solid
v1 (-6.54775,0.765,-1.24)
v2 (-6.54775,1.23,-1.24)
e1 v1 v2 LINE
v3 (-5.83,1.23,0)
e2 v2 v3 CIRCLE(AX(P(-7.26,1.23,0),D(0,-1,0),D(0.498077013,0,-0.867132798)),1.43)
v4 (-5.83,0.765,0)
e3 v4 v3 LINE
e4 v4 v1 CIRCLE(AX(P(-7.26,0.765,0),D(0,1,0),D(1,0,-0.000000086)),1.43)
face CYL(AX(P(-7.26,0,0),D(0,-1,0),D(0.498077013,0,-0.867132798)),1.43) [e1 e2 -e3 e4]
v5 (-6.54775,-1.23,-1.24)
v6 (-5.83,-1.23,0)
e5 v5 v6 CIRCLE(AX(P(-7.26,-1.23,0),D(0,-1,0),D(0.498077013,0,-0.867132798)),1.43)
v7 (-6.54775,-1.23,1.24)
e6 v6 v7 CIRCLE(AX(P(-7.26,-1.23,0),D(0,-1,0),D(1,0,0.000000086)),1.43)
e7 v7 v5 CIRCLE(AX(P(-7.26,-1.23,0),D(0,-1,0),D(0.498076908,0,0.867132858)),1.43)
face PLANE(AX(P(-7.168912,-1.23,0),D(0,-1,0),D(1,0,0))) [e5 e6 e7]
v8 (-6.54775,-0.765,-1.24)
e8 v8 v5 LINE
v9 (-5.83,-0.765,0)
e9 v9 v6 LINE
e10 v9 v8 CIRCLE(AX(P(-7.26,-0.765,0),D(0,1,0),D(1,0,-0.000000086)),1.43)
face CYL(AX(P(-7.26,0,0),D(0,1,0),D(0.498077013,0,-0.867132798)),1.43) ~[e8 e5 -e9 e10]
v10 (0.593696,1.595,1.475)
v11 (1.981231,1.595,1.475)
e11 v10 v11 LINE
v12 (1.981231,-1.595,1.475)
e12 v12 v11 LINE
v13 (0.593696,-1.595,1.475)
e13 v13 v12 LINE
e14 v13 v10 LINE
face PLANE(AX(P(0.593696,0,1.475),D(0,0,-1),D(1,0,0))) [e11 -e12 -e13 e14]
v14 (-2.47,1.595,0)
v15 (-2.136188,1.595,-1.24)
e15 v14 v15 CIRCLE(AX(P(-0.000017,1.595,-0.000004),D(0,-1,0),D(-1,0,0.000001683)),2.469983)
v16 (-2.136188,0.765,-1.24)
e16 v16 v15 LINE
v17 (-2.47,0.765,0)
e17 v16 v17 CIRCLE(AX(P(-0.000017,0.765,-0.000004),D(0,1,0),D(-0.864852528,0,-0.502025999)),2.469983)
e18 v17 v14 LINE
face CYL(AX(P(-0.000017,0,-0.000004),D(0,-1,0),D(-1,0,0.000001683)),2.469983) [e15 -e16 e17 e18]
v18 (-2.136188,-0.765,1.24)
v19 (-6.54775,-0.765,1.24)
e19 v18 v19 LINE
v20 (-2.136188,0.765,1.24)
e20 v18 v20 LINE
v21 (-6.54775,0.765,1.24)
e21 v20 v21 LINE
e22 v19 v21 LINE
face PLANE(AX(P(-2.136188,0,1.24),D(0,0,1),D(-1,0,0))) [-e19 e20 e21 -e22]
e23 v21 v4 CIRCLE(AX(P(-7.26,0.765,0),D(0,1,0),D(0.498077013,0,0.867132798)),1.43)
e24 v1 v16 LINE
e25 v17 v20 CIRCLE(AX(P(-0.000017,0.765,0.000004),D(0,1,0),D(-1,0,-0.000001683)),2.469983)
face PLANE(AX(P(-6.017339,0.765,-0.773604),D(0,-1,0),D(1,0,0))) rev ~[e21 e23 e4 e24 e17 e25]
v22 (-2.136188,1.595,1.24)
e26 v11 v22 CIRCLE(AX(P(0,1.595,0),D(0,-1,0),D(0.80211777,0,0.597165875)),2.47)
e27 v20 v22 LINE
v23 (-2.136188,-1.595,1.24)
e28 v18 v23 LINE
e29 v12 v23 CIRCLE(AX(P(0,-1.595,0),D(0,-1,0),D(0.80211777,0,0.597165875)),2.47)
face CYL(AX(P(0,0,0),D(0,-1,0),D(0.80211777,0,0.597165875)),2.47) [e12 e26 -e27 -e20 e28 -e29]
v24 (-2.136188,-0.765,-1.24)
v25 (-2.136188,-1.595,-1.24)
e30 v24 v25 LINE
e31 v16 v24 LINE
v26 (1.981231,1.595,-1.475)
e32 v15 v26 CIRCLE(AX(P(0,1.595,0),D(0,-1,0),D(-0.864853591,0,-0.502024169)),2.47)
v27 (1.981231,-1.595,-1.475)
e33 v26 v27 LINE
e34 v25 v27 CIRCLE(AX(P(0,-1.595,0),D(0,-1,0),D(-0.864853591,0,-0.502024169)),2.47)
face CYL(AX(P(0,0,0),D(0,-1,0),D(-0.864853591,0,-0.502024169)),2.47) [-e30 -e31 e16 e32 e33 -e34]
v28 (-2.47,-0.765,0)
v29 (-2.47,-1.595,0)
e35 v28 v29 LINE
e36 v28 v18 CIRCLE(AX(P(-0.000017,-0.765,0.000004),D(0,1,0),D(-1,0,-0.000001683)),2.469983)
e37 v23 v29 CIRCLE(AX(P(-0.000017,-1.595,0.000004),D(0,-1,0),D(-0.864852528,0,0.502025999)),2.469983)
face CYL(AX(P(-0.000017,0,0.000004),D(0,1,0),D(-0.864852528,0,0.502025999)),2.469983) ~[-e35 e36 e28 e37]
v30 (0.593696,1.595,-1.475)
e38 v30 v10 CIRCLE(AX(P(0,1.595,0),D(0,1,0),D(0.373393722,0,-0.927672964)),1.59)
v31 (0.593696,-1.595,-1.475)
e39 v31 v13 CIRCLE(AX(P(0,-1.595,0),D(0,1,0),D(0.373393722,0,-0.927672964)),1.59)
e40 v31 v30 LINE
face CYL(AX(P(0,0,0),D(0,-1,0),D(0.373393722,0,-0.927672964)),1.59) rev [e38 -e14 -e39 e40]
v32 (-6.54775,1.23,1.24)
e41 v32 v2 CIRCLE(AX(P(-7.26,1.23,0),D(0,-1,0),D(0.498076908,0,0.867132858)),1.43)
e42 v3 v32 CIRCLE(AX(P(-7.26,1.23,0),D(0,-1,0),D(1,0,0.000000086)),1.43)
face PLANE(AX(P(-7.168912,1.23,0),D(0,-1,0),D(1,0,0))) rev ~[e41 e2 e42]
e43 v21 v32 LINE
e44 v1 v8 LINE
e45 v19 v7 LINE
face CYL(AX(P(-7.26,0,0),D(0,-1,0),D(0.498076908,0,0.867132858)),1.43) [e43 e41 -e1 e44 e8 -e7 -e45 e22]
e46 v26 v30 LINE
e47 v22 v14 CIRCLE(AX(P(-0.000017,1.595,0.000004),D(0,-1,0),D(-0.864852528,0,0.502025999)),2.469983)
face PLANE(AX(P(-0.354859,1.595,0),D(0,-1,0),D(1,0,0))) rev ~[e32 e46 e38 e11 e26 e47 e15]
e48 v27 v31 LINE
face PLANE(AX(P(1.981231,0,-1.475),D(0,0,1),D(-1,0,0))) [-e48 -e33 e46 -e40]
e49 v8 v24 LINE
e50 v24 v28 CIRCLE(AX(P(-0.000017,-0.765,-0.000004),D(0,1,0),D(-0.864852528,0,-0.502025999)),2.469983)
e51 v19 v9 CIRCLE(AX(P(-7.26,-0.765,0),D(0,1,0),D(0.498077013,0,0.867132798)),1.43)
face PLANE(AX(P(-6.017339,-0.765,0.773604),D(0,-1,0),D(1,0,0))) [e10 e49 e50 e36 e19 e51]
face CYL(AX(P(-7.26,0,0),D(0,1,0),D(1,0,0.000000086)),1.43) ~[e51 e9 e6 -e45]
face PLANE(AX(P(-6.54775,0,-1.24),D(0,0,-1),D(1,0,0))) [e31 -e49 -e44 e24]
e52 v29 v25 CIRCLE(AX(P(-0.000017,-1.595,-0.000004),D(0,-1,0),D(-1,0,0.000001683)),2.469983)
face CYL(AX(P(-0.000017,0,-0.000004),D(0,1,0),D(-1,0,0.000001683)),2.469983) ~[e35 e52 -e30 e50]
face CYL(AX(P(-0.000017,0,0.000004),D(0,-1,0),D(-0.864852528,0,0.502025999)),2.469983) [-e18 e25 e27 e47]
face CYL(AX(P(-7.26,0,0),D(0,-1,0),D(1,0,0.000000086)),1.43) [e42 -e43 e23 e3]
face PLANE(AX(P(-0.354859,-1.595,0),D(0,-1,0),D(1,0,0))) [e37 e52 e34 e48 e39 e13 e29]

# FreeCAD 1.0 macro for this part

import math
import FreeCAD as App
import Part
import Sketcher
Q = App.Units.Quantity

doc = App.newDocument("Part")
body = doc.addObject("PartDesign::Body", "Body")

sketch1 = body.newObject("Sketcher::SketchObject", "Sketch")
sketch1.AttachmentSupport = (doc.getObject("XZ_Plane"), [""])
sketch1.MapMode = "FlatFace"
sketch1.addGeometry([
    Part.ArcOfCircle(Part.Circle(App.Vector(-7.3, 0, 0), App.Vector(0, 0, 1), 1.4), math.radians(-60), math.radians(0)),
    Part.ArcOfCircle(Part.Circle(App.Vector(-7.3, 0, 0), App.Vector(0, 0, 1), 1.4), math.radians(0), math.radians(60)),
    Part.ArcOfCircle(Part.Circle(App.Vector(-7.3, 0, 0), App.Vector(0, 0, 1), 1.4), math.radians(60), math.radians(300)),
], False)
sketch1.addConstraint([
    Sketcher.Constraint("Tangent", 0, 2, 1, 1),
    Sketcher.Constraint("Tangent", 1, 2, 2, 1),
    Sketcher.Constraint("Tangent", 2, 2, 0, 1),
    Sketcher.Constraint("Symmetric", 1, 2, 2, 2, -1),
    Sketcher.Constraint("PointOnObject", 0, 2, -1),
    Sketcher.Constraint("Radius", 0, Q("1.43 mm")),
    Sketcher.Constraint("DistanceX", 0, 3, -1, 1, Q("7.26 mm")),
    Sketcher.Constraint("DistanceY", -1, 1, 1, 2, Q("1.24 mm")),
])
pad1 = body.newObject("PartDesign::Pad", "Pad")
pad1.Profile = sketch1
pad1.Length = 1.23

sketch2 = body.newObject("Sketcher::SketchObject", "Sketch001")
sketch2.AttachmentSupport = (doc.getObject("XZ_Plane"), [""])
sketch2.MapMode = "FlatFace"
sketch2.addGeometry([
    Part.ArcOfCircle(Part.Circle(App.Vector(-7.3, 0, 0), App.Vector(0, 0, 1), 1.4), math.radians(0), math.radians(60)),
    Part.ArcOfCircle(Part.Circle(App.Vector(-7.3, 0, 0), App.Vector(0, 0, 1), 1.4), math.radians(-60), math.radians(0)),
    Part.LineSegment(App.Vector(-6.5, -1.2, 0), App.Vector(-2.1, -1.2, 0)),
    Part.ArcOfCircle(Part.Circle(App.Vector(0, 0, 0), App.Vector(0, 0, 1), 2.5), math.radians(180), math.radians(210)),
    Part.ArcOfCircle(Part.Circle(App.Vector(0, 0, 0), App.Vector(0, 0, 1), 2.5), math.radians(150), math.radians(180)),
    Part.LineSegment(App.Vector(-2.1, 1.2, 0), App.Vector(-6.5, 1.2, 0)),
], False)
sketch2.addConstraint([
    Sketcher.Constraint("Tangent", 0, 1, 1, 2),
    Sketcher.Constraint("Coincident", 1, 1, 2, 1),
    Sketcher.Constraint("Coincident", 2, 2, 3, 2),
    Sketcher.Constraint("Coincident", 3, 1, 4, 2),
    Sketcher.Constraint("Coincident", 4, 1, 5, 1),
    Sketcher.Constraint("Coincident", 5, 2, 0, 2),
    Sketcher.Constraint("Horizontal", 2),
    Sketcher.Constraint("Horizontal", 5),
    Sketcher.Constraint("Coincident", 4, 3, 3, 3),
    Sketcher.Constraint("Equal", 0, 1),
    Sketcher.Constraint("Symmetric", 2, 2, 4, 1, -1),
    Sketcher.Constraint("PointOnObject", 0, 3, -1),
    Sketcher.Constraint("PointOnObject", 0, 1, -1),
    Sketcher.Constraint("PointOnObject", 3, 1, -1),
    Sketcher.Constraint("Radius", 0, Q("1.43 mm")),
    Sketcher.Constraint("DistanceX", 0, 3, -1, 1, Q("7.26 mm")),
    Sketcher.Constraint("DistanceY", 1, 1, -1, 1, Q("1.24 mm")),
    Sketcher.Constraint("DistanceX", 3, 1, -1, 1, Q("2.47 mm")),
    Sketcher.Constraint("Radius", 3, Q("2.469983 mm")),
])
pad2 = body.newObject("PartDesign::Pad", "Pad001")
pad2.Profile = sketch2
pad2.Length = 0.765

sketch3 = body.newObject("Sketcher::SketchObject", "Sketch002")
sketch3.AttachmentSupport = (doc.getObject("XZ_Plane"), [""])
sketch3.MapMode = "FlatFace"
sketch3.addGeometry([
    Part.ArcOfCircle(Part.Circle(App.Vector(0, 0, 0), App.Vector(0, 0, 1), 2.5), math.radians(37), math.radians(150)),
    Part.ArcOfCircle(Part.Circle(App.Vector(0, 0, 0), App.Vector(0, 0, 1), 2.5), math.radians(150), math.radians(180)),
    Part.ArcOfCircle(Part.Circle(App.Vector(0, 0, 0), App.Vector(0, 0, 1), 2.5), math.radians(180), math.radians(210)),
    Part.ArcOfCircle(Part.Circle(App.Vector(0, 0, 0), App.Vector(0, 0, 1), 2.5), math.radians(-150), math.radians(-37)),
    Part.LineSegment(App.Vector(2, -1.5, 0), App.Vector(0.6, -1.5, 0)),
    Part.ArcOfCircle(Part.Circle(App.Vector(0, 0, 0), App.Vector(0, 0, 1), 1.6), math.radians(68), math.radians(292)),
    Part.LineSegment(App.Vector(0.6, 1.5, 0), App.Vector(2, 1.5, 0)),
], False)
sketch3.addConstraint([
    Sketcher.Constraint("Coincident", 0, 2, 1, 1),
    Sketcher.Constraint("Coincident", 1, 2, 2, 1),
    Sketcher.Constraint("Coincident", 2, 2, 3, 1),
    Sketcher.Constraint("Coincident", 3, 2, 4, 1),
    Sketcher.Constraint("Coincident", 4, 2, 5, 2),
    Sketcher.Constraint("Coincident", 5, 1, 6, 1),
    Sketcher.Constraint("Coincident", 6, 2, 0, 1),
    Sketcher.Constraint("Horizontal", 4),
    Sketcher.Constraint("Horizontal", 6),
    Sketcher.Constraint("Coincident", 0, 3, -1, 1),
    Sketcher.Constraint("Coincident", 3, 3, -1, 1),
    Sketcher.Constraint("Coincident", 5, 3, -1, 1),
    Sketcher.Constraint("Coincident", 2, 3, 1, 3),
    Sketcher.Constraint("Equal", 0, 3),
    Sketcher.Constraint("PointOnObject", 1, 2, -1),
    Sketcher.Constraint("Vertical", 0, 2, 2, 2),
    Sketcher.Constraint("Vertical", 4, 2, 5, 1),
    Sketcher.Constraint("Radius", 0, Q("2.47 mm")),
    Sketcher.Constraint("Radius", 5, Q("1.59 mm")),
    Sketcher.Constraint("DistanceY", -1, 1, 0, 2, Q("1.24 mm")),
    Sketcher.Constraint("DistanceX", 1, 2, -1, 1, Q("2.47 mm")),
    Sketcher.Constraint("DistanceY", 3, 2, -1, 1, Q("1.475 mm")),
])
pad3 = body.newObject("PartDesign::Pad", "Pad002")
pad3.Profile = sketch3
pad3.Length = 1.595

sketch4 = body.newObject("Sketcher::SketchObject", "Sketch003")
sketch4.AttachmentSupport = (doc.getObject("XZ_Plane"), [""])
sketch4.MapMode = "FlatFace"
sketch4.addGeometry([
    Part.ArcOfCircle(Part.Circle(App.Vector(0, 0, 0), App.Vector(0, 0, 1), 2.5), math.radians(37), math.radians(150)),
    Part.ArcOfCircle(Part.Circle(App.Vector(0, 0, 0), App.Vector(0, 0, 1), 2.5), math.radians(150), math.radians(180)),
    Part.ArcOfCircle(Part.Circle(App.Vector(0, 0, 0), App.Vector(0, 0, 1), 2.5), math.radians(180), math.radians(210)),
    Part.ArcOfCircle(Part.Circle(App.Vector(0, 0, 0), App.Vector(0, 0, 1), 2.5), math.radians(-150), math.radians(-37)),
    Part.LineSegment(App.Vector(2, -1.5, 0), App.Vector(0.6, -1.5, 0)),
    Part.ArcOfCircle(Part.Circle(App.Vector(0, 0, 0), App.Vector(0, 0, 1), 1.6), math.radians(68), math.radians(292)),
    Part.LineSegment(App.Vector(0.6, 1.5, 0), App.Vector(2, 1.5, 0)),
], False)
sketch4.addConstraint([
    Sketcher.Constraint("Coincident", 0, 2, 1, 1),
    Sketcher.Constraint("Coincident", 1, 2, 2, 1),
    Sketcher.Constraint("Coincident", 2, 2, 3, 1),
    Sketcher.Constraint("Coincident", 3, 2, 4, 1),
    Sketcher.Constraint("Coincident", 4, 2, 5, 2),
    Sketcher.Constraint("Coincident", 5, 1, 6, 1),
    Sketcher.Constraint("Coincident", 6, 2, 0, 1),
    Sketcher.Constraint("Horizontal", 4),
    Sketcher.Constraint("Horizontal", 6),
    Sketcher.Constraint("Coincident", 0, 3, -1, 1),
    Sketcher.Constraint("Coincident", 3, 3, -1, 1),
    Sketcher.Constraint("Coincident", 5, 3, -1, 1),
    Sketcher.Constraint("Coincident", 2, 3, 1, 3),
    Sketcher.Constraint("Equal", 0, 3),
    Sketcher.Constraint("PointOnObject", 1, 2, -1),
    Sketcher.Constraint("Vertical", 0, 2, 2, 2),
    Sketcher.Constraint("Vertical", 4, 2, 5, 1),
    Sketcher.Constraint("Radius", 0, Q("2.47 mm")),
    Sketcher.Constraint("Radius", 5, Q("1.59 mm")),
    Sketcher.Constraint("DistanceY", -1, 1, 0, 2, Q("1.24 mm")),
    Sketcher.Constraint("DistanceX", 1, 2, -1, 1, Q("2.47 mm")),
    Sketcher.Constraint("DistanceY", 3, 2, -1, 1, Q("1.475 mm")),
])
pad4 = body.newObject("PartDesign::Pad", "Pad003")
pad4.Profile = sketch4
pad4.Length = 1.595
pad4.Reversed = True

sketch5 = body.newObject("Sketcher::SketchObject", "Sketch004")
sketch5.AttachmentSupport = (doc.getObject("XZ_Plane"), [""])
sketch5.MapMode = "FlatFace"
sketch5.addGeometry([
    Part.LineSegment(App.Vector(-6.5, -1.2, 0), App.Vector(-2.1, -1.2, 0)),
    Part.ArcOfCircle(Part.Circle(App.Vector(0, 0, 0), App.Vector(0, 0, 1), 2.5), math.radians(180), math.radians(210)),
    Part.ArcOfCircle(Part.Circle(App.Vector(0, 0, 0), App.Vector(0, 0, 1), 2.5), math.radians(150), math.radians(180)),
    Part.LineSegment(App.Vector(-2.1, 1.2, 0), App.Vector(-6.5, 1.2, 0)),
    Part.ArcOfCircle(Part.Circle(App.Vector(-7.3, 0, 0), App.Vector(0, 0, 1), 1.4), math.radians(0), math.radians(60)),
    Part.ArcOfCircle(Part.Circle(App.Vector(-7.3, 0, 0), App.Vector(0, 0, 1), 1.4), math.radians(-60), math.radians(0)),
], False)
sketch5.addConstraint([
    Sketcher.Constraint("Coincident", 0, 2, 1, 2),
    Sketcher.Constraint("Coincident", 1, 1, 2, 2),
    Sketcher.Constraint("Coincident", 2, 1, 3, 1),
    Sketcher.Constraint("Coincident", 3, 2, 4, 2),
    Sketcher.Constraint("Tangent", 4, 1, 5, 2),
    Sketcher.Constraint("Coincident", 5, 1, 0, 1),
    Sketcher.Constraint("Horizontal", 0),
    Sketcher.Constraint("Horizontal", 3),
    Sketcher.Constraint("Coincident", 2, 3, 1, 3),
    Sketcher.Constraint("Equal", 4, 5),
    Sketcher.Constraint("Symmetric", 0, 2, 2, 1, -1),
    Sketcher.Constraint("PointOnObject", 4, 3, -1),
    Sketcher.Constraint("PointOnObject", 1, 1, -1),
    Sketcher.Constraint("PointOnObject", 4, 1, -1),
    Sketcher.Constraint("Radius", 4, Q("1.43 mm")),
    Sketcher.Constraint("DistanceX", 4, 3, -1, 1, Q("7.26 mm")),
    Sketcher.Constraint("DistanceY", 0, 2, -1, 1, Q("1.24 mm")),
    Sketcher.Constraint("DistanceX", 1, 1, -1, 1, Q("2.47 mm")),
    Sketcher.Constraint("Radius", 1, Q("2.469983 mm")),
])
pad5 = body.newObject("PartDesign::Pad", "Pad004")
pad5.Profile = sketch5
pad5.Length = 0.765
pad5.Reversed = True

sketch6 = body.newObject("Sketcher::SketchObject", "Sketch005")
sketch6.AttachmentSupport = (doc.getObject("XZ_Plane"), [""])
sketch6.MapMode = "FlatFace"
sketch6.addGeometry([
    Part.ArcOfCircle(Part.Circle(App.Vector(-7.3, 0, 0), App.Vector(0, 0, 1), 1.4), math.radians(-60), math.radians(0)),
    Part.ArcOfCircle(Part.Circle(App.Vector(-7.3, 0, 0), App.Vector(0, 0, 1), 1.4), math.radians(0), math.radians(60)),
    Part.ArcOfCircle(Part.Circle(App.Vector(-7.3, 0, 0), App.Vector(0, 0, 1), 1.4), math.radians(60), math.radians(300)),
], False)
sketch6.addConstraint([
    Sketcher.Constraint("Tangent", 0, 2, 1, 1),
    Sketcher.Constraint("Tangent", 1, 2, 2, 1),
    Sketcher.Constraint("Tangent", 2, 2, 0, 1),
    Sketcher.Constraint("Symmetric", 1, 2, 2, 2, -1),
    Sketcher.Constraint("PointOnObject", 0, 2, -1),
    Sketcher.Constraint("Radius", 0, Q("1.43 mm")),
    Sketcher.Constraint("DistanceX", 0, 3, -1, 1, Q("7.26 mm")),
    Sketcher.Constraint("DistanceY", -1, 1, 1, 2, Q("1.24 mm")),
])
pad6 = body.newObject("PartDesign::Pad", "Pad005")
pad6.Profile = sketch6
pad6.Length = 1.23
pad6.Reversed = True

doc.recompute()
